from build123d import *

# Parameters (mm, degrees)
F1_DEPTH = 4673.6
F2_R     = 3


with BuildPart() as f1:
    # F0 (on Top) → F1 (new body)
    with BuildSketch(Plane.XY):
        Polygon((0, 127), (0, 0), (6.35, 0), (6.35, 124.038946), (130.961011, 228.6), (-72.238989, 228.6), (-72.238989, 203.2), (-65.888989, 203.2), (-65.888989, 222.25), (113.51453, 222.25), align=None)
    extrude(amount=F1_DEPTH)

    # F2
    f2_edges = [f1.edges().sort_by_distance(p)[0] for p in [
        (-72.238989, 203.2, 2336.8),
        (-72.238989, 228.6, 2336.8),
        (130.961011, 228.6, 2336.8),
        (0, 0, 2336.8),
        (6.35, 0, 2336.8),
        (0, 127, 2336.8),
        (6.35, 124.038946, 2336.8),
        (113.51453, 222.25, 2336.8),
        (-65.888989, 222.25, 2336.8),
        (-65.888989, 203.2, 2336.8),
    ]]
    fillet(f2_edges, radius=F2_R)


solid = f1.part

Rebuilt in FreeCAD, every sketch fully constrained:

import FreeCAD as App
import Part
import Sketcher
Q = App.Units.Quantity


def edges_at(feature, points):
    """Names of the edges that pass closest to the given points."""
    edges = feature.Shape.Edges
    near = lambda p: min(range(len(edges)), key=lambda i: edges[i].distToShape(Part.Vertex(*p))[0])
    return sorted({f"Edge{near(p) + 1}" for p in points})

doc = App.newDocument("Part")
params = doc.addObject("Spreadsheet::Sheet", "Params")
for row, (alias, value) in enumerate([
    ("sketch1_width", "8 in"),
    ("sketch1_height", "5 in"),
    ("sketch1_height2", "1 in"),
    ("sketch1_width2", "0.25 in"),
    ("sketch1_height3", "0.75 in"),
    ("pad1_length", "184 in"),
    ("fillet_radius", "3 mm"),
], start=1):
    params.set(f"A{row}", alias)
    params.set(f"B{row}", "=" + value)
    params.setAlias(f"B{row}", alias)

body = doc.addObject("PartDesign::Body", "Body")

# Sketch on XY plane
sketch1 = doc.addObject("Sketcher::SketchObject", "Sketch")
body.addObject(sketch1)
sketch1.AttachmentSupport = (doc.XY_Plane, [""])
sketch1.MapMode = "FlatFace"
sketch1.addGeometry([
    Part.LineSegment(App.Vector(0, 127, 0), App.Vector(0, 0, 0)),  # 0
    Part.LineSegment(App.Vector(0, 0, 0), App.Vector(6, 0, 0)),  # 1
    Part.LineSegment(App.Vector(6, 0, 0), App.Vector(6, 124, 0)),  # 2
    Part.LineSegment(App.Vector(6, 124, 0), App.Vector(131, 229, 0)),  # 3
    Part.LineSegment(App.Vector(131, 229, 0), App.Vector(-72, 229, 0)),  # 4
    Part.LineSegment(App.Vector(-72, 229, 0), App.Vector(-72, 203, 0)),  # 5
    Part.LineSegment(App.Vector(-72, 203, 0), App.Vector(-66, 203, 0)),  # 6
    Part.LineSegment(App.Vector(-66, 203, 0), App.Vector(-66, 222, 0)),  # 7
    Part.LineSegment(App.Vector(-66, 222, 0), App.Vector(114, 222, 0)),  # 8
    Part.LineSegment(App.Vector(114, 222, 0), App.Vector(0, 127, 0)),  # 9
], False)
sketch1.addConstraint([
    Sketcher.Constraint("Coincident", 0, 2, 1, 1),
    Sketcher.Constraint("Coincident", 1, 2, 2, 1),
    Sketcher.Constraint("Coincident", 2, 2, 3, 1),
    Sketcher.Constraint("Coincident", 3, 2, 4, 1),
    Sketcher.Constraint("Coincident", 4, 2, 5, 1),
    Sketcher.Constraint("Coincident", 5, 2, 6, 1),
    Sketcher.Constraint("Coincident", 6, 2, 7, 1),
    Sketcher.Constraint("Coincident", 7, 2, 8, 1),
    Sketcher.Constraint("Coincident", 8, 2, 9, 1),
    Sketcher.Constraint("Coincident", 9, 2, 0, 1),
    Sketcher.Constraint("Vertical", 0),
    Sketcher.Constraint("Horizontal", 1),
    Sketcher.Constraint("Vertical", 2),
    Sketcher.Constraint("Horizontal", 4),
    Sketcher.Constraint("Vertical", 5),
    Sketcher.Constraint("Horizontal", 6),
    Sketcher.Constraint("Vertical", 7),
    Sketcher.Constraint("Horizontal", 8),
    Sketcher.Constraint("Coincident", 0, 2, -1, 1),
    Sketcher.Constraint("Parallel", 3, 9),
    Sketcher.Constraint("Equal", 1, 6),
    Sketcher.Constraint("DistanceX", 4, 2, 4, 1, Q("8 in")),
    Sketcher.Constraint("DistanceY", 0, 2, 0, 1, Q("5 in")),
    Sketcher.Constraint("DistanceY", 5, 2, 5, 1, Q("1 in")),
    Sketcher.Constraint("DistanceY", -1, 1, 3, 2, Q("9 in")),
    Sketcher.Constraint("Angle", 3, Q("40 deg")),
    Sketcher.Constraint("DistanceX", 1, 1, 1, 2, Q("0.25 in")),
    Sketcher.Constraint("DistanceY", 7, 1, 7, 2, Q("0.75 in")),
    Sketcher.Constraint("DistanceX", 8, 1, 8, 2, Q("179.403519 mm")),
])
sketch1.setExpression("Constraints[21]", "Params.sketch1_width")
sketch1.setExpression("Constraints[22]", "Params.sketch1_height")
sketch1.setExpression("Constraints[23]", "Params.sketch1_height2")
sketch1.setExpression("Constraints[26]", "Params.sketch1_width2")
sketch1.setExpression("Constraints[27]", "Params.sketch1_height3")
pad1 = doc.addObject("PartDesign::Pad", "Pad")
body.addObject(pad1)
pad1.Profile = sketch1
pad1.setExpression("Length", "Params.pad1_length")
doc.recompute()

fillet = doc.addObject("PartDesign::Fillet", "Fillet")
body.addObject(fillet)
fillet.Base = (pad1, edges_at(pad1, [
    (-72.239, 203.2, 2336.8),
    (-72.239, 228.6, 2336.8),
    (130.961, 228.6, 2336.8),
    (0, 0, 2336.8),
    (6.35, 0, 2336.8),
    (0, 127, 2336.8),
    (6.35, 124.039, 2336.8),
    (113.515, 222.25, 2336.8),
    (-65.889, 222.25, 2336.8),
    (-65.889, 203.2, 2336.8),
]))
fillet.setExpression("Radius", "Params.fillet_radius")

doc.recompute()
